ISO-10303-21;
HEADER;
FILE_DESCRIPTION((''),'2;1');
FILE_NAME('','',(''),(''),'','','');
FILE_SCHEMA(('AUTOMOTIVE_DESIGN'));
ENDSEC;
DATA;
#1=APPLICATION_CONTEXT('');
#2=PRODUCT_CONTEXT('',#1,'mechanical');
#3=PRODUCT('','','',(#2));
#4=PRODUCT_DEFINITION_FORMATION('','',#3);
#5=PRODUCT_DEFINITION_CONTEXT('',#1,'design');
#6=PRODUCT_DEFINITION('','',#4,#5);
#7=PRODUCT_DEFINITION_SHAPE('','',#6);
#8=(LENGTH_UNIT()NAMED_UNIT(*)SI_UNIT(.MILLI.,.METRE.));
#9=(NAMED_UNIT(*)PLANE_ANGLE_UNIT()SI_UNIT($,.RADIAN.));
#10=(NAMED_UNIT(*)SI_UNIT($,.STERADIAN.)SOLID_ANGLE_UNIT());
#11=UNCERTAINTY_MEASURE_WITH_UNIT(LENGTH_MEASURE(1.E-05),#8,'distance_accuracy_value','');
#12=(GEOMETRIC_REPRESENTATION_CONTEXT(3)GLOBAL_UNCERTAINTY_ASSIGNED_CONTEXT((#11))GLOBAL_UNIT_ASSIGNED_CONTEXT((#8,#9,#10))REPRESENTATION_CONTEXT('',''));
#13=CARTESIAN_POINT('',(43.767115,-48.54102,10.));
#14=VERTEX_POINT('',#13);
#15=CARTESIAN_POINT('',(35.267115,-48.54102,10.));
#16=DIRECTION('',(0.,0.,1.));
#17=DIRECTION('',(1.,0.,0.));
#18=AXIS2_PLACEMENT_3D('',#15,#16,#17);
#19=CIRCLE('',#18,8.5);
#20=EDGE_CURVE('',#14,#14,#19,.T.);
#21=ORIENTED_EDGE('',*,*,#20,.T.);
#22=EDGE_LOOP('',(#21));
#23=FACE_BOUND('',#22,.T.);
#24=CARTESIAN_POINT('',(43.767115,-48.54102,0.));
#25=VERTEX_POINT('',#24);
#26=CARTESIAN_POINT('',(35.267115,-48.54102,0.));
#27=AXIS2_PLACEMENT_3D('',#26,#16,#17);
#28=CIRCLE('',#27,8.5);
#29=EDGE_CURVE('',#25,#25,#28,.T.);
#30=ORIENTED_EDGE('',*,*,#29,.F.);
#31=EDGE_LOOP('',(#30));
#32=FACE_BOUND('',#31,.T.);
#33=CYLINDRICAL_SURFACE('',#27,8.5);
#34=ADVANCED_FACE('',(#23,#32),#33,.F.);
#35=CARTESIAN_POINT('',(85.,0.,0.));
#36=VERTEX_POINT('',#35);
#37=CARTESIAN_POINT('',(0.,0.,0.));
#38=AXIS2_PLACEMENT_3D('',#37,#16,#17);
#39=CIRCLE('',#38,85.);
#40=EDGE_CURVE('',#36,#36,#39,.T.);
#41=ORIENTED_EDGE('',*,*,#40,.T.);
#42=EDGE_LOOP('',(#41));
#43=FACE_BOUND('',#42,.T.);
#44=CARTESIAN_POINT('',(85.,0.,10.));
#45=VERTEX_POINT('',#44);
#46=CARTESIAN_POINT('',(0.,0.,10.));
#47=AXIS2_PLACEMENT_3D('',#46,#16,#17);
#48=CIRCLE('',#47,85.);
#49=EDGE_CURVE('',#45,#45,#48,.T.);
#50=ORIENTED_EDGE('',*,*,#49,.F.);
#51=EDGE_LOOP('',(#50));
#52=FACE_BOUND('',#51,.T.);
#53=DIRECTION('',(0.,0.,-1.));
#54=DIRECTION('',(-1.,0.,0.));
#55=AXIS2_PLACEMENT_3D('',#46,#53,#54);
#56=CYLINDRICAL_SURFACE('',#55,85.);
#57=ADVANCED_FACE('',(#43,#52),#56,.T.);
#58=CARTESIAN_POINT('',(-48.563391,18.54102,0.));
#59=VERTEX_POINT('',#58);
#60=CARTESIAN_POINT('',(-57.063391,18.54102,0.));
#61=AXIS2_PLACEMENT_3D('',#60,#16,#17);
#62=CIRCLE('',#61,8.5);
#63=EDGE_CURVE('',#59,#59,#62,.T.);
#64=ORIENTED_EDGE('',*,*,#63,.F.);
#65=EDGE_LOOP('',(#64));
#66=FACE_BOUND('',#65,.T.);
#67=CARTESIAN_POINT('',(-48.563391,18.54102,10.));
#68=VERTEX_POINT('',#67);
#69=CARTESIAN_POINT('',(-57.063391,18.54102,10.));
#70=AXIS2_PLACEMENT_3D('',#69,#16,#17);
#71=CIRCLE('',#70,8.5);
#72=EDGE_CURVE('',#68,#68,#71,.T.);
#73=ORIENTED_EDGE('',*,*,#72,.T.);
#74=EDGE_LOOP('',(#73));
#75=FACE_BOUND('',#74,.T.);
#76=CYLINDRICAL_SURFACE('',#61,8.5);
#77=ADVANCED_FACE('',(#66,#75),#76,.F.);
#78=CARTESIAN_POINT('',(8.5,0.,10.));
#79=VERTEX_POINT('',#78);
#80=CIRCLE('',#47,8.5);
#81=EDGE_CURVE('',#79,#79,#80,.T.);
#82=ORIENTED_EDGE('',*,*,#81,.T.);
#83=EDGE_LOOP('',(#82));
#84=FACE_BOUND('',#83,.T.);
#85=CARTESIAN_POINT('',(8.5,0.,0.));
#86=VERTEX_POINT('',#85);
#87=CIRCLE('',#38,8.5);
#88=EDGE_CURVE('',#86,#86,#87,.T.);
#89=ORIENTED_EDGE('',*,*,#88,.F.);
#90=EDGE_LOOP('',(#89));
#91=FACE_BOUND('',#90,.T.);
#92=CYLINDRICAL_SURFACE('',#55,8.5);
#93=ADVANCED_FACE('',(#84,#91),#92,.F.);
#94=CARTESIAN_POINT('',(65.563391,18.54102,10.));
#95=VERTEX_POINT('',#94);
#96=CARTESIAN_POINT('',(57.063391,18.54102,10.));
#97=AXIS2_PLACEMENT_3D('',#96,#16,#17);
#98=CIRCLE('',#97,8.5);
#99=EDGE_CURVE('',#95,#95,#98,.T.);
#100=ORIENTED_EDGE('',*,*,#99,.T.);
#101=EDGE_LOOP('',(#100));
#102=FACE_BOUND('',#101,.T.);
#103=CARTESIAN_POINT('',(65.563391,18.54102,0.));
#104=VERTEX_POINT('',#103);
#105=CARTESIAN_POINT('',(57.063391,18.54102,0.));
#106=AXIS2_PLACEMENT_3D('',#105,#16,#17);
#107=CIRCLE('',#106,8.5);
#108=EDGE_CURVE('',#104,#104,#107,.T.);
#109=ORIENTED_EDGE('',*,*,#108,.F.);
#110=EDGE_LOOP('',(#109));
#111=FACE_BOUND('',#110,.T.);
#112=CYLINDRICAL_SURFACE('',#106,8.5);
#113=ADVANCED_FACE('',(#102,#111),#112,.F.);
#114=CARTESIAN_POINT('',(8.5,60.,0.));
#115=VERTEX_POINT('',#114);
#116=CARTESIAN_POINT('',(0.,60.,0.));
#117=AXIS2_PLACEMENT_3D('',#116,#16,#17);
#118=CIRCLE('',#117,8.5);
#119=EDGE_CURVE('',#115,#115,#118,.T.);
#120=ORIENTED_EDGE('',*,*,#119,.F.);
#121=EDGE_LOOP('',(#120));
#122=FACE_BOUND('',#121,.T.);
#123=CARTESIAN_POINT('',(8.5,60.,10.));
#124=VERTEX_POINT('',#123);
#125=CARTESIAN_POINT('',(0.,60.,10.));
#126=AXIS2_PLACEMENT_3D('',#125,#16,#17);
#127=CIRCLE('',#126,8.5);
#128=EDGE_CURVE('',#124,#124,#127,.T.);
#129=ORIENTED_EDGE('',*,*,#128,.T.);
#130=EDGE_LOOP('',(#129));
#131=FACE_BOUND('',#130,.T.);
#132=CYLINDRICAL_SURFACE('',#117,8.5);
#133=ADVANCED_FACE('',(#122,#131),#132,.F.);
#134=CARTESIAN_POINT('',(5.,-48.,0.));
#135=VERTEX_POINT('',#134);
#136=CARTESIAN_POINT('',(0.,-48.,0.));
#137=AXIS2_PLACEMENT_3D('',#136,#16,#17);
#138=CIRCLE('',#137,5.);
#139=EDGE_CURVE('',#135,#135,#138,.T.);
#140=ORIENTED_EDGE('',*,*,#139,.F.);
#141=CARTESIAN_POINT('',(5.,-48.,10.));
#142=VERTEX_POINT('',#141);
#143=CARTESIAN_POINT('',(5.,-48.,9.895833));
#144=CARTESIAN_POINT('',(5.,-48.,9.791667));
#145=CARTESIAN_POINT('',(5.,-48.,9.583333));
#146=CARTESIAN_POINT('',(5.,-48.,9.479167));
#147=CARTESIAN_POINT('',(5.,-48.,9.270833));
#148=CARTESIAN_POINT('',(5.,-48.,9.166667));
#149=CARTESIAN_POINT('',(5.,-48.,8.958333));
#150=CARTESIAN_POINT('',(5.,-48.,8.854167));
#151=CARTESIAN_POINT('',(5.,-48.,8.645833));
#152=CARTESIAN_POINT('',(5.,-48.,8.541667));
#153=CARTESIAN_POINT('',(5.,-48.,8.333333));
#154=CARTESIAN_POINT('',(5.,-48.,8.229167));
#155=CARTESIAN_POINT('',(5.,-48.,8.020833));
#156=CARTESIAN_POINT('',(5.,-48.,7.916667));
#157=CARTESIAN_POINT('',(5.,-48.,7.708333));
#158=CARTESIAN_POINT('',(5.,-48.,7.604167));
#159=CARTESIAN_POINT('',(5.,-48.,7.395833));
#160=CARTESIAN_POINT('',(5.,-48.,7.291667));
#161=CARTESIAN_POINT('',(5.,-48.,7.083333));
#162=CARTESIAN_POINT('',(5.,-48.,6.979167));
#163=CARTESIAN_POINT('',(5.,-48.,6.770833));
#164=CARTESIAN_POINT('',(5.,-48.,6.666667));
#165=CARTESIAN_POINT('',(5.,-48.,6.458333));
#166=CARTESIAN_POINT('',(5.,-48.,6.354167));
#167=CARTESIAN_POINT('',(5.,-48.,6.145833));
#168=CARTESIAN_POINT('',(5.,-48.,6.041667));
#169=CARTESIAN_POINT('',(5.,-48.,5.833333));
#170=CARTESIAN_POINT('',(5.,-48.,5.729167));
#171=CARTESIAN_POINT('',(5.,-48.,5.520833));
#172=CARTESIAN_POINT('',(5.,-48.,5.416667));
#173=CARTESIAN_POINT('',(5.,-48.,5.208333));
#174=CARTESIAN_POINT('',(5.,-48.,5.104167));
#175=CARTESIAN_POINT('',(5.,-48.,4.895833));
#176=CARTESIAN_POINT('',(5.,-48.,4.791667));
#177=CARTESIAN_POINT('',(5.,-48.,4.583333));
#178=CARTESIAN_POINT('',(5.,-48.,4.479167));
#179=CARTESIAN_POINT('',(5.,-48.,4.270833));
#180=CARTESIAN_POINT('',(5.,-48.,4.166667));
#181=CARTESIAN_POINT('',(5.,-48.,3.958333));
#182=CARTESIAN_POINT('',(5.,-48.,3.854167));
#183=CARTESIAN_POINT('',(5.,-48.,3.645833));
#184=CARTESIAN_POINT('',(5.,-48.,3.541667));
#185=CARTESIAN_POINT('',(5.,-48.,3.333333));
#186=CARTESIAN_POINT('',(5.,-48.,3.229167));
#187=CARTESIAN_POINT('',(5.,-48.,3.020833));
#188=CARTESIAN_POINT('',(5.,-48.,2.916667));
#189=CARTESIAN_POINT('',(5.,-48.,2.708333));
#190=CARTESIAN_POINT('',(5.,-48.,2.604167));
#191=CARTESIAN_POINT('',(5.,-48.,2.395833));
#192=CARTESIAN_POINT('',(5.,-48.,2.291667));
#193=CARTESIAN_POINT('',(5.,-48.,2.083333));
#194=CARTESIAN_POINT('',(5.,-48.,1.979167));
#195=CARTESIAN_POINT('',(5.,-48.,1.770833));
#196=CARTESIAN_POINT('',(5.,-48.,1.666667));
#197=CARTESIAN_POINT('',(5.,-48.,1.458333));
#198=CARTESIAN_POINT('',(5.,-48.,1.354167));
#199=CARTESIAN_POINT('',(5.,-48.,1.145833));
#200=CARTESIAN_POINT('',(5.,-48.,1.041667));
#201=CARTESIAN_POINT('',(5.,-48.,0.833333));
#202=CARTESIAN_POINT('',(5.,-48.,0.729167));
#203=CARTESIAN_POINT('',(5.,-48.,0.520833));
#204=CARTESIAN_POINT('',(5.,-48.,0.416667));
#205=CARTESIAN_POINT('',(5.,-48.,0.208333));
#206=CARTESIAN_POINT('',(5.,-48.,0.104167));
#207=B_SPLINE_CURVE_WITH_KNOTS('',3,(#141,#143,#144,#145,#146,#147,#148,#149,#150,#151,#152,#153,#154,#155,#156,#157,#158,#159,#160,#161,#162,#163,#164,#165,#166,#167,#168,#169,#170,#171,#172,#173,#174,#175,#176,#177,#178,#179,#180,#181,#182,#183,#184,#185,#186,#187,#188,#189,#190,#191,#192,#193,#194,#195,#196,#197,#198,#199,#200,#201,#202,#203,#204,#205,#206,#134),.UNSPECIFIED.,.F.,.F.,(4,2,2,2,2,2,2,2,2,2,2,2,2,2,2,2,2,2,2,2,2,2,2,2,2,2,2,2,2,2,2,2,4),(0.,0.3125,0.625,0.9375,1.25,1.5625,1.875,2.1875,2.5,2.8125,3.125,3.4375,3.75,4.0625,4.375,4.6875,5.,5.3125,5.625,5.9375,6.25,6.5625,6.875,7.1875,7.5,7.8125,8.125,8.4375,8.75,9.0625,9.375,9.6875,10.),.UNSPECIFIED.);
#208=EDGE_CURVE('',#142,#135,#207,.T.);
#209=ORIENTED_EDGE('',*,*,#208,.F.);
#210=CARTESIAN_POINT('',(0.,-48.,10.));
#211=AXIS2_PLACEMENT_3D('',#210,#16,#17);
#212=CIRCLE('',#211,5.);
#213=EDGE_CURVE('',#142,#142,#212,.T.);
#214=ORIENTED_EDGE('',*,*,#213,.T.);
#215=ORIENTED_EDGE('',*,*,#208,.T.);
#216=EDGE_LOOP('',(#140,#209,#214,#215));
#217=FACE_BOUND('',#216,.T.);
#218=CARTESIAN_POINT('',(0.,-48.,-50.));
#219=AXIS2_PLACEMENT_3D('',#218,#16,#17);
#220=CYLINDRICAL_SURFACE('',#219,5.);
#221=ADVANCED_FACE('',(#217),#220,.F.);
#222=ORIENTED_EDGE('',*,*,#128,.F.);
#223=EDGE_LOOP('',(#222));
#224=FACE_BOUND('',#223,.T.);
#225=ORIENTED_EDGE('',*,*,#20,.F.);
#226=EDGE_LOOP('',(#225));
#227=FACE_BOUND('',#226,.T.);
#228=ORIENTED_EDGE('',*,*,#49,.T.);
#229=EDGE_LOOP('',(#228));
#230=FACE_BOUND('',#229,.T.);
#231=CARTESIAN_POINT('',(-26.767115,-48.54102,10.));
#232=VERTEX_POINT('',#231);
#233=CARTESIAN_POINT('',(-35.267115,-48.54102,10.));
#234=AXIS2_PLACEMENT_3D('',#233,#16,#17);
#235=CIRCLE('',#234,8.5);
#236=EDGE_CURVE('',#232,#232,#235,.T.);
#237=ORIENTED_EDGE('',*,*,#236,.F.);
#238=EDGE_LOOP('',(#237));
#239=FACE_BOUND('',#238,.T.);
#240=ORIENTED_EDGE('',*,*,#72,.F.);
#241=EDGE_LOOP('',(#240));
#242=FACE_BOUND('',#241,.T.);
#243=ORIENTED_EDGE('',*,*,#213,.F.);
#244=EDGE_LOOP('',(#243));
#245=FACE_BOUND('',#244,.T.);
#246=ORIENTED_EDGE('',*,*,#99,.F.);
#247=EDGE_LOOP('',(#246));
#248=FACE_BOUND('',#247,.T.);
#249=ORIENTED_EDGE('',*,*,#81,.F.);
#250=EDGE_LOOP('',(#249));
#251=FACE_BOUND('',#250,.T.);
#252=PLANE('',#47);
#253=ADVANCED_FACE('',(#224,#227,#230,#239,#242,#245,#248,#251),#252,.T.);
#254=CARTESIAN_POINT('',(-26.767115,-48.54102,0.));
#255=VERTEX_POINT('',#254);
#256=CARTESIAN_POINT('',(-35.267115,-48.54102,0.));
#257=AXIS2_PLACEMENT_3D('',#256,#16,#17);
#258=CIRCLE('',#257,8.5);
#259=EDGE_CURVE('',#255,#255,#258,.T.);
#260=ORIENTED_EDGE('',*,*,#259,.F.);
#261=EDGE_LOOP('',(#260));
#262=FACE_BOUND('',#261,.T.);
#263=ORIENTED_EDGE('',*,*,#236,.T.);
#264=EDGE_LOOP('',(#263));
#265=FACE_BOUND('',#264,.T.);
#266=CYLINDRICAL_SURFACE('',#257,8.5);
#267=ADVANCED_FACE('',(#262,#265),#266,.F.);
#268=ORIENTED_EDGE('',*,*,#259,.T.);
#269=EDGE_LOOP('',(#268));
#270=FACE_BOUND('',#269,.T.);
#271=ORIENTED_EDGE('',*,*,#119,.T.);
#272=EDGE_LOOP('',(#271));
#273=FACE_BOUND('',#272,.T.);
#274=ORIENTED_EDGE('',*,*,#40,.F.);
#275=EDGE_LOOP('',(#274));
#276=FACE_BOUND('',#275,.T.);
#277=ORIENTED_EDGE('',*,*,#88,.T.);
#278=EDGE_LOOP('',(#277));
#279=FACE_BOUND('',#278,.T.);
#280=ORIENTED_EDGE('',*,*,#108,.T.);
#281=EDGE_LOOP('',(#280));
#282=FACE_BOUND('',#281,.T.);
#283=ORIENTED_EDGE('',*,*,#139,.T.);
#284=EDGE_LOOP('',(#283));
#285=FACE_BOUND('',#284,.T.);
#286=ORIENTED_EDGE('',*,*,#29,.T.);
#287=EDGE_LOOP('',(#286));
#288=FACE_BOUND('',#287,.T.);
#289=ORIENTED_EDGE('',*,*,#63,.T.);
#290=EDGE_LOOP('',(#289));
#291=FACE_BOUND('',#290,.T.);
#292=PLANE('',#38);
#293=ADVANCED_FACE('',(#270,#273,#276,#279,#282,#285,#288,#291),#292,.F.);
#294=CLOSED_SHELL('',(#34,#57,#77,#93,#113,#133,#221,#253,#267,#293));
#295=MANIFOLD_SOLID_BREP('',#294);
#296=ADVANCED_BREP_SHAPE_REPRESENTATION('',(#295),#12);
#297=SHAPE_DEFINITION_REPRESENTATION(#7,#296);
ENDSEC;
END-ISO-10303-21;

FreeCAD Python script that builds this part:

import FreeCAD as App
import Part
import Sketcher
Q = App.Units.Quantity

doc = App.newDocument("Part")
body = doc.addObject("PartDesign::Body", "Body")

sketch1 = doc.addObject("Sketcher::SketchObject", "Sketch")
body.addObject(sketch1)
sketch1.AttachmentSupport = (doc.XY_Plane, [""])
sketch1.MapMode = "FlatFace"
sketch1.addGeometry([
    Part.Circle(App.Vector(0, 0, 0), App.Vector(0, 0, 1), 85),
    Part.Circle(App.Vector(0, 0, 0), App.Vector(0, 0, 1), 8),
], False)
sketch1.addConstraint([
    Sketcher.Constraint("Coincident", 0, 3, -1, 1),
    Sketcher.Constraint("Coincident", 1, 3, -1, 1),
    Sketcher.Constraint("Diameter", 0, Q("170 mm")),
    Sketcher.Constraint("Diameter", 1, Q("17 mm")),
])
pad1 = doc.addObject("PartDesign::Pad", "Pad")
body.addObject(pad1)
pad1.Profile = sketch1
pad1.Length = 10

sketch2 = doc.addObject("Sketcher::SketchObject", "Sketch001")
body.addObject(sketch2)
sketch2.AttachmentSupport = (doc.XY_Plane, [""])
sketch2.MapMode = "FlatFace"
sketch2.AttachmentOffset = App.Placement(App.Vector(0, 0, 10), App.Rotation())
sketch2.addGeometry([
    Part.Circle(App.Vector(0, 60, 0), App.Vector(0, 0, 1), 8),
    Part.Circle(App.Vector(57, 19, 0), App.Vector(0, 0, 1), 8),
    Part.Circle(App.Vector(35, -49, 0), App.Vector(0, 0, 1), 8),
    Part.Circle(App.Vector(-35, -49, 0), App.Vector(0, 0, 1), 8),
    Part.Circle(App.Vector(-57, 19, 0), App.Vector(0, 0, 1), 8),
], False)
sketch2.addConstraint([
    Sketcher.Constraint("Equal", 0, 1),
    Sketcher.Constraint("Equal", 1, 2),
    Sketcher.Constraint("Equal", 2, 3),
    Sketcher.Constraint("Equal", 3, 4),
    Sketcher.Constraint("Symmetric", 2, 3, 3, 3, -2),
    Sketcher.Constraint("Symmetric", 1, 3, 4, 3, -2),
    Sketcher.Constraint("PointOnObject", 0, 3, -2),
    Sketcher.Constraint("Diameter", 0, Q("17 mm")),
    Sketcher.Constraint("DistanceY", -1, 1, 0, 3, Q("60 mm")),
    Sketcher.Constraint("DistanceX", -1, 1, 1, 3, Q("57.063391 mm")),
    Sketcher.Constraint("DistanceY", -1, 1, 1, 3, Q("18.54102 mm")),
    Sketcher.Constraint("DistanceY", 2, 3, -1, 1, Q("48.54102 mm")),
    Sketcher.Constraint("DistanceX", 3, 3, 2, 3, Q("70.53423 mm")),
])
pocket1 = doc.addObject("PartDesign::Pocket", "Pocket")
body.addObject(pocket1)
pocket1.Profile = sketch2
pocket1.Length = 10

sketch3 = doc.addObject("Sketcher::SketchObject", "Sketch002")
body.addObject(sketch3)
sketch3.AttachmentSupport = (doc.XY_Plane, [""])
sketch3.MapMode = "FlatFace"
sketch3.AttachmentOffset = App.Placement(App.Vector(0, 0, 10), App.Rotation())
sketch3.addGeometry(Part.Circle(App.Vector(0, -48, 0), App.Vector(0, 0, 1), 5), False)
sketch3.addConstraint([
    Sketcher.Constraint("PointOnObject", 0, 3, -2),
    Sketcher.Constraint("Diameter", 0, Q("10 mm")),
    Sketcher.Constraint("DistanceY", 0, 3, -1, 1, Q("48 mm")),
])
pocket2 = doc.addObject("PartDesign::Pocket", "Pocket001")
body.addObject(pocket2)
pocket2.Profile = sketch3
pocket2.Length = 60

doc.recompute()
